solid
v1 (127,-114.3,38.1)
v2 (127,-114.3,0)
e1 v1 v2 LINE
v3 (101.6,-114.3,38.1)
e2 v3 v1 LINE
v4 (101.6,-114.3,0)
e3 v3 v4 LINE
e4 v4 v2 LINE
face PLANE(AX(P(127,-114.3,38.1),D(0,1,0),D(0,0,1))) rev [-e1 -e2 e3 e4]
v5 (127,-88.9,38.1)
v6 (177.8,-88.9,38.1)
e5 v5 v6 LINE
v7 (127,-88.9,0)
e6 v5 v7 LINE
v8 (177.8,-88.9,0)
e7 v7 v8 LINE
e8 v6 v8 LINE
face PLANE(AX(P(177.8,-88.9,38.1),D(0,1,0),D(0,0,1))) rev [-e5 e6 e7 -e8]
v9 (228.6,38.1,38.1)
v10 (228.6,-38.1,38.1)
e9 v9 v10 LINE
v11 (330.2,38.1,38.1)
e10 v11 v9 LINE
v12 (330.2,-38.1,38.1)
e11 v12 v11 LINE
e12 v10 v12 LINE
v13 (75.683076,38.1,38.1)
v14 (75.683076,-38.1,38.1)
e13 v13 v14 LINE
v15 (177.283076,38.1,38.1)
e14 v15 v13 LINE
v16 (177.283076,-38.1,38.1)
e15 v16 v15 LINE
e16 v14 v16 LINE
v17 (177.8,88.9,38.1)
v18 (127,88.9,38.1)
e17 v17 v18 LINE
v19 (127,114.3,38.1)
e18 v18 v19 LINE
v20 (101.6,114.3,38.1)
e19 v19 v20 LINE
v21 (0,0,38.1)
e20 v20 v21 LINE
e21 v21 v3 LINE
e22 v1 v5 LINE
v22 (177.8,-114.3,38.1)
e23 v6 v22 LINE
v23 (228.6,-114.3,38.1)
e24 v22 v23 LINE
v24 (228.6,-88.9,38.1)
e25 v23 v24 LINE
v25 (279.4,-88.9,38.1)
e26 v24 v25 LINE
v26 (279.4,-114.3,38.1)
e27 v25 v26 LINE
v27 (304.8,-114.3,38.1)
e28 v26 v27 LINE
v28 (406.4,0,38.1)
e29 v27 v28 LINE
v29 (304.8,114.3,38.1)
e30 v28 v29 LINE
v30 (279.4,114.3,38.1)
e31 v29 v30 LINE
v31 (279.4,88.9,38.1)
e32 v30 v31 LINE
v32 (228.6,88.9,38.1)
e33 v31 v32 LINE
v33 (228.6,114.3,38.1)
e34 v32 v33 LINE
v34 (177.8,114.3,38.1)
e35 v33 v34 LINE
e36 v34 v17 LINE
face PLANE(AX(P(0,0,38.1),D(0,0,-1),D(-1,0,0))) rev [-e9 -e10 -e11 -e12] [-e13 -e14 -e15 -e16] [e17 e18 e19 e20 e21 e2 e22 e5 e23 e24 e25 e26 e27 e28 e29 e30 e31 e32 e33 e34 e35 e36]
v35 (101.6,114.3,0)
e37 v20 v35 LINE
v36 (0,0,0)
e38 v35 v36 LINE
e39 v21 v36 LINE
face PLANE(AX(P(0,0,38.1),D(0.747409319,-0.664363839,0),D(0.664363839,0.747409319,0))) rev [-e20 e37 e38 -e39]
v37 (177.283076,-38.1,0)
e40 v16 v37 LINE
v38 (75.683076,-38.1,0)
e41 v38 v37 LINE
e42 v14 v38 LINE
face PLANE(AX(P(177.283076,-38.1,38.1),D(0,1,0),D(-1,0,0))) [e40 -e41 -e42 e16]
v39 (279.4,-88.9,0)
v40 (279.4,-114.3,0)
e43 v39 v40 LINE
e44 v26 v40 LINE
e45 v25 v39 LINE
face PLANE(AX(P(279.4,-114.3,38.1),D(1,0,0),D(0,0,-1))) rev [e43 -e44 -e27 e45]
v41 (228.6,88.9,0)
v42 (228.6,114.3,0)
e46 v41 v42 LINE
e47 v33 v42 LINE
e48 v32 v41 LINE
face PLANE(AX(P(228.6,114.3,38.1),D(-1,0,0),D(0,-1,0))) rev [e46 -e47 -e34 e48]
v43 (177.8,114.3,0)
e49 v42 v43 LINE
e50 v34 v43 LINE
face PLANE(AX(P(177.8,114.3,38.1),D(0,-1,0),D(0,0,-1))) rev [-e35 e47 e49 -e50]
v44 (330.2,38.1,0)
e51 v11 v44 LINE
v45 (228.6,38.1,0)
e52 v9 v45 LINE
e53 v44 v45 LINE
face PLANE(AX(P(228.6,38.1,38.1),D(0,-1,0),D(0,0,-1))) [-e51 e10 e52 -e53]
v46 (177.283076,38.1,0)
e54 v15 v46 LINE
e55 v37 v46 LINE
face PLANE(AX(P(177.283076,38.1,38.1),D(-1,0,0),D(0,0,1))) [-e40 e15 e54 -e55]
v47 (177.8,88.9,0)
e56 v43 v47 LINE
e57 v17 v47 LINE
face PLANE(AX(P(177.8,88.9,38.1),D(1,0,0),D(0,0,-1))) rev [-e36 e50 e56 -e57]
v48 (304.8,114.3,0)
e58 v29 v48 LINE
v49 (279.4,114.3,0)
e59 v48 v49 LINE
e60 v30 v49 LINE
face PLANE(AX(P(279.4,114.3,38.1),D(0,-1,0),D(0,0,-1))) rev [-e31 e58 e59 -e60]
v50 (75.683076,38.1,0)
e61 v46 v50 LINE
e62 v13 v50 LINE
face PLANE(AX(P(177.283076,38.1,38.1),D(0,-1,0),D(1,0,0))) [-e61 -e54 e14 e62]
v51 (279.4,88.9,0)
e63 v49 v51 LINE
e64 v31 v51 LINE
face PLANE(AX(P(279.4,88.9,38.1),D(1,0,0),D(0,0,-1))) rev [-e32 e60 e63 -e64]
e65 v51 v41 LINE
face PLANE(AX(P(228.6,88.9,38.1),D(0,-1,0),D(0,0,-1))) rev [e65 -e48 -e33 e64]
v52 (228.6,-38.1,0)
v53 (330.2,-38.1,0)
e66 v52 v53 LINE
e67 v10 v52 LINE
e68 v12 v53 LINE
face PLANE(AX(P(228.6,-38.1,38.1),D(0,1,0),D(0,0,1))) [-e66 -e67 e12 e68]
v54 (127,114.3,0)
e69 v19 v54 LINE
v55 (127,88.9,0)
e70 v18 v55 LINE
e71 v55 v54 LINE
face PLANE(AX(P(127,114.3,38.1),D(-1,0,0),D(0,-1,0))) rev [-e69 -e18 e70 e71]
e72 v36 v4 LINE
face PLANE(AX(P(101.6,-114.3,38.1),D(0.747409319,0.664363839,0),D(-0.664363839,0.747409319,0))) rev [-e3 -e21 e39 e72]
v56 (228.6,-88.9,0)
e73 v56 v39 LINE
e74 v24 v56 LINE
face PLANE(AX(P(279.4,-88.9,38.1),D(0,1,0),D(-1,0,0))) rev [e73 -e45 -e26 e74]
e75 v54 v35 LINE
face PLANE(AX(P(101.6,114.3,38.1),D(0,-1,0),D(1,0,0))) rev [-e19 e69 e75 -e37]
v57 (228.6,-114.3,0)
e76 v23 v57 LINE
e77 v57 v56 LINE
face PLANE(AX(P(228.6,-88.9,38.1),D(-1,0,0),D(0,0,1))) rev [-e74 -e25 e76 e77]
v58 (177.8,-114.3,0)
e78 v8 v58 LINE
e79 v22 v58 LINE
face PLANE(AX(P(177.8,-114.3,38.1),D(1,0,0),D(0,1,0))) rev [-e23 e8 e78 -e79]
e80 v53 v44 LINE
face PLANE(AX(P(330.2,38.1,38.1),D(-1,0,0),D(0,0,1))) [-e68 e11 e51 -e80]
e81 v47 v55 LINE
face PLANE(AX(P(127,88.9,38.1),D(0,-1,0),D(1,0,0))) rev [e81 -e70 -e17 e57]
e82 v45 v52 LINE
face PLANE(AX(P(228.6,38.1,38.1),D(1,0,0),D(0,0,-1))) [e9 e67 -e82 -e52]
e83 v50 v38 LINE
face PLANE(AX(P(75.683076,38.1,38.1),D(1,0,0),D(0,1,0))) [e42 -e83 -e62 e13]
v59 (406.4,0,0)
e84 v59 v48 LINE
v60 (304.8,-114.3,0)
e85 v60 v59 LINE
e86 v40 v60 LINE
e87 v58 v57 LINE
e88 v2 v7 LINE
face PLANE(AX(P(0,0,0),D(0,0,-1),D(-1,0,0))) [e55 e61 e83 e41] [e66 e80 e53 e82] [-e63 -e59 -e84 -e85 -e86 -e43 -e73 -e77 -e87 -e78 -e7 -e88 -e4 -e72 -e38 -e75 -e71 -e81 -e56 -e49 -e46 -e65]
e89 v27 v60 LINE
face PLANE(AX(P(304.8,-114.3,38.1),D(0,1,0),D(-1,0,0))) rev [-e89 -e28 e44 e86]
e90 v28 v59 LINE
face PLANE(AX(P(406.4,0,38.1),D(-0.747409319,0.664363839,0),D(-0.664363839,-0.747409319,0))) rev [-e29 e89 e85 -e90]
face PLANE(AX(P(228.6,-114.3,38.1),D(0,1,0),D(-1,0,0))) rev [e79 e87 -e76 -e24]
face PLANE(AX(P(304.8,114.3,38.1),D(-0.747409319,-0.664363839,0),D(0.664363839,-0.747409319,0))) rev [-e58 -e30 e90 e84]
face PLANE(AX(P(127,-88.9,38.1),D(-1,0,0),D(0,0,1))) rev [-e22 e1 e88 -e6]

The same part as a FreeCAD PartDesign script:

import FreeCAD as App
import Part
import Sketcher

V = App.Vector
Q = App.Units.Quantity

doc = App.newDocument("Part")
params = doc.addObject("Spreadsheet::Sheet", "Params")
for row, (alias, value) in enumerate([
    ("sketch1_width", "1 in"),
    ("sketch1_width2", "2 in"),
    ("sketch1_width3", "4 in"),
    ("sketch1_height", "3 in"),
    ("pad1_length", "1.5 in"),
], start=1):
    params.set(f"A{row}", alias)
    params.set(f"B{row}", "=" + value)
    params.setAlias(f"B{row}", alias)

body = doc.addObject("PartDesign::Body", "Body")

# Sketch on XY plane
sketch1 = body.newObject("Sketcher::SketchObject", "Sketch")
sketch1.AttachmentSupport = (doc.getObject("XY_Plane"), [""])
sketch1.MapMode = "FlatFace"
sketch1.addGeometry([
    Part.LineSegment(V(101.6, 114.3, 0), V(0, 0, 0)),  # 0
    Part.LineSegment(V(0, 0, 0), V(101.6, -114.3, 0)),  # 1
    Part.LineSegment(V(101.6, -114.3, 0), V(127, -114.3, 0)),  # 2
    Part.LineSegment(V(127, -114.3, 0), V(127, -88.9, 0)),  # 3
    Part.LineSegment(V(127, -88.9, 0), V(177.8, -88.9, 0)),  # 4
    Part.LineSegment(V(177.8, -88.9, 0), V(177.8, -114.3, 0)),  # 5
    Part.LineSegment(V(177.8, -114.3, 0), V(228.6, -114.3, 0)),  # 6
    Part.LineSegment(V(228.6, -114.3, 0), V(228.6, -88.9, 0)),  # 7
    Part.LineSegment(V(228.6, -88.9, 0), V(279.4, -88.9, 0)),  # 8
    Part.LineSegment(V(279.4, -88.9, 0), V(279.4, -114.3, 0)),  # 9
    Part.LineSegment(V(279.4, -114.3, 0), V(304.8, -114.3, 0)),  # 10
    Part.LineSegment(V(304.8, -114.3, 0), V(406.4, 0, 0)),  # 11
    Part.LineSegment(V(406.4, 0, 0), V(304.8, 114.3, 0)),  # 12
    Part.LineSegment(V(304.8, 114.3, 0), V(279.4, 114.3, 0)),  # 13
    Part.LineSegment(V(279.4, 114.3, 0), V(279.4, 88.9, 0)),  # 14
    Part.LineSegment(V(279.4, 88.9, 0), V(228.6, 88.9, 0)),  # 15
    Part.LineSegment(V(228.6, 88.9, 0), V(228.6, 114.3, 0)),  # 16
    Part.LineSegment(V(228.6, 114.3, 0), V(177.8, 114.3, 0)),  # 17
    Part.LineSegment(V(177.8, 114.3, 0), V(177.8, 88.9, 0)),  # 18
    Part.LineSegment(V(177.8, 88.9, 0), V(127, 88.9, 0)),  # 19
    Part.LineSegment(V(127, 88.9, 0), V(127, 114.3, 0)),  # 20
    Part.LineSegment(V(127, 114.3, 0), V(101.6, 114.3, 0)),  # 21
    Part.LineSegment(V(228.6, -38.1, 0), V(228.6, 38.1, 0)),  # 22
    Part.LineSegment(V(228.6, 38.1, 0), V(330.2, 38.1, 0)),  # 23
    Part.LineSegment(V(330.2, 38.1, 0), V(330.2, -38.1, 0)),  # 24
    Part.LineSegment(V(330.2, -38.1, 0), V(228.6, -38.1, 0)),  # 25
    Part.LineSegment(V(75.683076, -38.1, 0), V(75.683076, 38.1, 0)),  # 26
    Part.LineSegment(V(75.683076, 38.1, 0), V(177.283076, 38.1, 0)),  # 27
    Part.LineSegment(V(177.283076, 38.1, 0), V(177.283076, -38.1, 0)),  # 28
    Part.LineSegment(V(177.283076, -38.1, 0), V(75.683076, -38.1, 0)),  # 29
], False)
sketch1.addConstraint([
    Sketcher.Constraint("Coincident", 0, 2, 1, 1),
    Sketcher.Constraint("Coincident", 1, 2, 2, 1),
    Sketcher.Constraint("Coincident", 2, 2, 3, 1),
    Sketcher.Constraint("Coincident", 3, 2, 4, 1),
    Sketcher.Constraint("Coincident", 4, 2, 5, 1),
    Sketcher.Constraint("Coincident", 5, 2, 6, 1),
    Sketcher.Constraint("Coincident", 6, 2, 7, 1),
    Sketcher.Constraint("Coincident", 7, 2, 8, 1),
    Sketcher.Constraint("Coincident", 8, 2, 9, 1),
    Sketcher.Constraint("Coincident", 9, 2, 10, 1),
    Sketcher.Constraint("Coincident", 10, 2, 11, 1),
    Sketcher.Constraint("Coincident", 11, 2, 12, 1),
    Sketcher.Constraint("Coincident", 12, 2, 13, 1),
    Sketcher.Constraint("Coincident", 13, 2, 14, 1),
    Sketcher.Constraint("Coincident", 14, 2, 15, 1),
    Sketcher.Constraint("Coincident", 15, 2, 16, 1),
    Sketcher.Constraint("Coincident", 16, 2, 17, 1),
    Sketcher.Constraint("Coincident", 17, 2, 18, 1),
    Sketcher.Constraint("Coincident", 18, 2, 19, 1),
    Sketcher.Constraint("Coincident", 19, 2, 20, 1),
    Sketcher.Constraint("Coincident", 20, 2, 21, 1),
    Sketcher.Constraint("Coincident", 21, 2, 0, 1),
    Sketcher.Constraint("Coincident", 22, 2, 23, 1),
    Sketcher.Constraint("Coincident", 23, 2, 24, 1),
    Sketcher.Constraint("Coincident", 24, 2, 25, 1),
    Sketcher.Constraint("Coincident", 25, 2, 22, 1),
    Sketcher.Constraint("Coincident", 26, 2, 27, 1),
    Sketcher.Constraint("Coincident", 27, 2, 28, 1),
    Sketcher.Constraint("Coincident", 28, 2, 29, 1),
    Sketcher.Constraint("Coincident", 29, 2, 26, 1),
    Sketcher.Constraint("Horizontal", 2),
    Sketcher.Constraint("Vertical", 3),
    Sketcher.Constraint("Horizontal", 4),
    Sketcher.Constraint("Vertical", 5),
    Sketcher.Constraint("Horizontal", 6),
    Sketcher.Constraint("Vertical", 7),
    Sketcher.Constraint("Horizontal", 8),
    Sketcher.Constraint("Vertical", 9),
    Sketcher.Constraint("Horizontal", 10),
    Sketcher.Constraint("Horizontal", 13),
    Sketcher.Constraint("Vertical", 14),
    Sketcher.Constraint("Horizontal", 15),
    Sketcher.Constraint("Vertical", 16),
    Sketcher.Constraint("Horizontal", 17),
    Sketcher.Constraint("Vertical", 18),
    Sketcher.Constraint("Horizontal", 19),
    Sketcher.Constraint("Vertical", 20),
    Sketcher.Constraint("Horizontal", 21),
    Sketcher.Constraint("Vertical", 22),
    Sketcher.Constraint("Horizontal", 23),
    Sketcher.Constraint("Vertical", 24),
    Sketcher.Constraint("Horizontal", 25),
    Sketcher.Constraint("Vertical", 26),
    Sketcher.Constraint("Horizontal", 27),
    Sketcher.Constraint("Vertical", 28),
    Sketcher.Constraint("Horizontal", 29),
    Sketcher.Constraint("Coincident", 0, 2, -1, 1),
    Sketcher.Constraint("Symmetric", 10, 2, 12, 2, -1),
    Sketcher.Constraint("Symmetric", 8, 2, 14, 2, -1),
    Sketcher.Constraint("Symmetric", 6, 2, 16, 2, -1),
    Sketcher.Constraint("Symmetric", 4, 2, 18, 2, -1),
    Sketcher.Constraint("Symmetric", 2, 2, 20, 2, -1),
    Sketcher.Constraint("PointOnObject", 11, 2, -1),
    Sketcher.Constraint("Parallel", 0, 11),
    Sketcher.Constraint("Parallel", 1, 12),
    Sketcher.Constraint("Horizontal", 2, 2, 5, 2),
    Sketcher.Constraint("Horizontal", 4, 2, 7, 2),
    Sketcher.Constraint("Horizontal", 6, 2, 9, 2),
    Sketcher.Constraint("Horizontal", 23, 2, 26, 2),
    Sketcher.Constraint("Horizontal", 25, 2, 28, 2),
    Sketcher.Constraint("Vertical", 16, 2, 22, 2),
    Sketcher.Constraint("Equal", 4, 6),
    Sketcher.Constraint("Equal", 6, 8),
    Sketcher.Constraint("Equal", 2, 10),
    Sketcher.Constraint("Equal", 25, 27),
    Sketcher.Constraint("Equal", 21, 3),
    Sketcher.Constraint("DistanceX", 2, 1, 2, 2, Q("1 in")),
    Sketcher.Constraint("DistanceX", 4, 1, 4, 2, Q("2 in")),
    Sketcher.Constraint("DistanceX", 23, 1, 23, 2, Q("4 in")),
    Sketcher.Constraint("DistanceY", 22, 1, 22, 2, Q("3 in")),
    Sketcher.Constraint("DistanceX", -1, 1, 1, 2, Q("4 in")),
    Sketcher.Constraint("DistanceY", 8, 2, 12, 2, Q("8 in")),
    Sketcher.Constraint("DistanceY", 22, 2, 15, 2, Q("2 in")),
    Sketcher.Constraint("DistanceX", -1, 1, 26, 2, Q("75.683076 mm")),
])
sketch1.setExpression("Constraints[76]", "Params.sketch1_width")
sketch1.setExpression("Constraints[77]", "Params.sketch1_width2")
sketch1.setExpression("Constraints[78]", "Params.sketch1_width3")
sketch1.setExpression("Constraints[79]", "Params.sketch1_height")
pad1 = body.newObject("PartDesign::Pad", "Pad")
pad1.Profile = sketch1
pad1.setExpression("Length", "Params.pad1_length")

doc.recompute()
